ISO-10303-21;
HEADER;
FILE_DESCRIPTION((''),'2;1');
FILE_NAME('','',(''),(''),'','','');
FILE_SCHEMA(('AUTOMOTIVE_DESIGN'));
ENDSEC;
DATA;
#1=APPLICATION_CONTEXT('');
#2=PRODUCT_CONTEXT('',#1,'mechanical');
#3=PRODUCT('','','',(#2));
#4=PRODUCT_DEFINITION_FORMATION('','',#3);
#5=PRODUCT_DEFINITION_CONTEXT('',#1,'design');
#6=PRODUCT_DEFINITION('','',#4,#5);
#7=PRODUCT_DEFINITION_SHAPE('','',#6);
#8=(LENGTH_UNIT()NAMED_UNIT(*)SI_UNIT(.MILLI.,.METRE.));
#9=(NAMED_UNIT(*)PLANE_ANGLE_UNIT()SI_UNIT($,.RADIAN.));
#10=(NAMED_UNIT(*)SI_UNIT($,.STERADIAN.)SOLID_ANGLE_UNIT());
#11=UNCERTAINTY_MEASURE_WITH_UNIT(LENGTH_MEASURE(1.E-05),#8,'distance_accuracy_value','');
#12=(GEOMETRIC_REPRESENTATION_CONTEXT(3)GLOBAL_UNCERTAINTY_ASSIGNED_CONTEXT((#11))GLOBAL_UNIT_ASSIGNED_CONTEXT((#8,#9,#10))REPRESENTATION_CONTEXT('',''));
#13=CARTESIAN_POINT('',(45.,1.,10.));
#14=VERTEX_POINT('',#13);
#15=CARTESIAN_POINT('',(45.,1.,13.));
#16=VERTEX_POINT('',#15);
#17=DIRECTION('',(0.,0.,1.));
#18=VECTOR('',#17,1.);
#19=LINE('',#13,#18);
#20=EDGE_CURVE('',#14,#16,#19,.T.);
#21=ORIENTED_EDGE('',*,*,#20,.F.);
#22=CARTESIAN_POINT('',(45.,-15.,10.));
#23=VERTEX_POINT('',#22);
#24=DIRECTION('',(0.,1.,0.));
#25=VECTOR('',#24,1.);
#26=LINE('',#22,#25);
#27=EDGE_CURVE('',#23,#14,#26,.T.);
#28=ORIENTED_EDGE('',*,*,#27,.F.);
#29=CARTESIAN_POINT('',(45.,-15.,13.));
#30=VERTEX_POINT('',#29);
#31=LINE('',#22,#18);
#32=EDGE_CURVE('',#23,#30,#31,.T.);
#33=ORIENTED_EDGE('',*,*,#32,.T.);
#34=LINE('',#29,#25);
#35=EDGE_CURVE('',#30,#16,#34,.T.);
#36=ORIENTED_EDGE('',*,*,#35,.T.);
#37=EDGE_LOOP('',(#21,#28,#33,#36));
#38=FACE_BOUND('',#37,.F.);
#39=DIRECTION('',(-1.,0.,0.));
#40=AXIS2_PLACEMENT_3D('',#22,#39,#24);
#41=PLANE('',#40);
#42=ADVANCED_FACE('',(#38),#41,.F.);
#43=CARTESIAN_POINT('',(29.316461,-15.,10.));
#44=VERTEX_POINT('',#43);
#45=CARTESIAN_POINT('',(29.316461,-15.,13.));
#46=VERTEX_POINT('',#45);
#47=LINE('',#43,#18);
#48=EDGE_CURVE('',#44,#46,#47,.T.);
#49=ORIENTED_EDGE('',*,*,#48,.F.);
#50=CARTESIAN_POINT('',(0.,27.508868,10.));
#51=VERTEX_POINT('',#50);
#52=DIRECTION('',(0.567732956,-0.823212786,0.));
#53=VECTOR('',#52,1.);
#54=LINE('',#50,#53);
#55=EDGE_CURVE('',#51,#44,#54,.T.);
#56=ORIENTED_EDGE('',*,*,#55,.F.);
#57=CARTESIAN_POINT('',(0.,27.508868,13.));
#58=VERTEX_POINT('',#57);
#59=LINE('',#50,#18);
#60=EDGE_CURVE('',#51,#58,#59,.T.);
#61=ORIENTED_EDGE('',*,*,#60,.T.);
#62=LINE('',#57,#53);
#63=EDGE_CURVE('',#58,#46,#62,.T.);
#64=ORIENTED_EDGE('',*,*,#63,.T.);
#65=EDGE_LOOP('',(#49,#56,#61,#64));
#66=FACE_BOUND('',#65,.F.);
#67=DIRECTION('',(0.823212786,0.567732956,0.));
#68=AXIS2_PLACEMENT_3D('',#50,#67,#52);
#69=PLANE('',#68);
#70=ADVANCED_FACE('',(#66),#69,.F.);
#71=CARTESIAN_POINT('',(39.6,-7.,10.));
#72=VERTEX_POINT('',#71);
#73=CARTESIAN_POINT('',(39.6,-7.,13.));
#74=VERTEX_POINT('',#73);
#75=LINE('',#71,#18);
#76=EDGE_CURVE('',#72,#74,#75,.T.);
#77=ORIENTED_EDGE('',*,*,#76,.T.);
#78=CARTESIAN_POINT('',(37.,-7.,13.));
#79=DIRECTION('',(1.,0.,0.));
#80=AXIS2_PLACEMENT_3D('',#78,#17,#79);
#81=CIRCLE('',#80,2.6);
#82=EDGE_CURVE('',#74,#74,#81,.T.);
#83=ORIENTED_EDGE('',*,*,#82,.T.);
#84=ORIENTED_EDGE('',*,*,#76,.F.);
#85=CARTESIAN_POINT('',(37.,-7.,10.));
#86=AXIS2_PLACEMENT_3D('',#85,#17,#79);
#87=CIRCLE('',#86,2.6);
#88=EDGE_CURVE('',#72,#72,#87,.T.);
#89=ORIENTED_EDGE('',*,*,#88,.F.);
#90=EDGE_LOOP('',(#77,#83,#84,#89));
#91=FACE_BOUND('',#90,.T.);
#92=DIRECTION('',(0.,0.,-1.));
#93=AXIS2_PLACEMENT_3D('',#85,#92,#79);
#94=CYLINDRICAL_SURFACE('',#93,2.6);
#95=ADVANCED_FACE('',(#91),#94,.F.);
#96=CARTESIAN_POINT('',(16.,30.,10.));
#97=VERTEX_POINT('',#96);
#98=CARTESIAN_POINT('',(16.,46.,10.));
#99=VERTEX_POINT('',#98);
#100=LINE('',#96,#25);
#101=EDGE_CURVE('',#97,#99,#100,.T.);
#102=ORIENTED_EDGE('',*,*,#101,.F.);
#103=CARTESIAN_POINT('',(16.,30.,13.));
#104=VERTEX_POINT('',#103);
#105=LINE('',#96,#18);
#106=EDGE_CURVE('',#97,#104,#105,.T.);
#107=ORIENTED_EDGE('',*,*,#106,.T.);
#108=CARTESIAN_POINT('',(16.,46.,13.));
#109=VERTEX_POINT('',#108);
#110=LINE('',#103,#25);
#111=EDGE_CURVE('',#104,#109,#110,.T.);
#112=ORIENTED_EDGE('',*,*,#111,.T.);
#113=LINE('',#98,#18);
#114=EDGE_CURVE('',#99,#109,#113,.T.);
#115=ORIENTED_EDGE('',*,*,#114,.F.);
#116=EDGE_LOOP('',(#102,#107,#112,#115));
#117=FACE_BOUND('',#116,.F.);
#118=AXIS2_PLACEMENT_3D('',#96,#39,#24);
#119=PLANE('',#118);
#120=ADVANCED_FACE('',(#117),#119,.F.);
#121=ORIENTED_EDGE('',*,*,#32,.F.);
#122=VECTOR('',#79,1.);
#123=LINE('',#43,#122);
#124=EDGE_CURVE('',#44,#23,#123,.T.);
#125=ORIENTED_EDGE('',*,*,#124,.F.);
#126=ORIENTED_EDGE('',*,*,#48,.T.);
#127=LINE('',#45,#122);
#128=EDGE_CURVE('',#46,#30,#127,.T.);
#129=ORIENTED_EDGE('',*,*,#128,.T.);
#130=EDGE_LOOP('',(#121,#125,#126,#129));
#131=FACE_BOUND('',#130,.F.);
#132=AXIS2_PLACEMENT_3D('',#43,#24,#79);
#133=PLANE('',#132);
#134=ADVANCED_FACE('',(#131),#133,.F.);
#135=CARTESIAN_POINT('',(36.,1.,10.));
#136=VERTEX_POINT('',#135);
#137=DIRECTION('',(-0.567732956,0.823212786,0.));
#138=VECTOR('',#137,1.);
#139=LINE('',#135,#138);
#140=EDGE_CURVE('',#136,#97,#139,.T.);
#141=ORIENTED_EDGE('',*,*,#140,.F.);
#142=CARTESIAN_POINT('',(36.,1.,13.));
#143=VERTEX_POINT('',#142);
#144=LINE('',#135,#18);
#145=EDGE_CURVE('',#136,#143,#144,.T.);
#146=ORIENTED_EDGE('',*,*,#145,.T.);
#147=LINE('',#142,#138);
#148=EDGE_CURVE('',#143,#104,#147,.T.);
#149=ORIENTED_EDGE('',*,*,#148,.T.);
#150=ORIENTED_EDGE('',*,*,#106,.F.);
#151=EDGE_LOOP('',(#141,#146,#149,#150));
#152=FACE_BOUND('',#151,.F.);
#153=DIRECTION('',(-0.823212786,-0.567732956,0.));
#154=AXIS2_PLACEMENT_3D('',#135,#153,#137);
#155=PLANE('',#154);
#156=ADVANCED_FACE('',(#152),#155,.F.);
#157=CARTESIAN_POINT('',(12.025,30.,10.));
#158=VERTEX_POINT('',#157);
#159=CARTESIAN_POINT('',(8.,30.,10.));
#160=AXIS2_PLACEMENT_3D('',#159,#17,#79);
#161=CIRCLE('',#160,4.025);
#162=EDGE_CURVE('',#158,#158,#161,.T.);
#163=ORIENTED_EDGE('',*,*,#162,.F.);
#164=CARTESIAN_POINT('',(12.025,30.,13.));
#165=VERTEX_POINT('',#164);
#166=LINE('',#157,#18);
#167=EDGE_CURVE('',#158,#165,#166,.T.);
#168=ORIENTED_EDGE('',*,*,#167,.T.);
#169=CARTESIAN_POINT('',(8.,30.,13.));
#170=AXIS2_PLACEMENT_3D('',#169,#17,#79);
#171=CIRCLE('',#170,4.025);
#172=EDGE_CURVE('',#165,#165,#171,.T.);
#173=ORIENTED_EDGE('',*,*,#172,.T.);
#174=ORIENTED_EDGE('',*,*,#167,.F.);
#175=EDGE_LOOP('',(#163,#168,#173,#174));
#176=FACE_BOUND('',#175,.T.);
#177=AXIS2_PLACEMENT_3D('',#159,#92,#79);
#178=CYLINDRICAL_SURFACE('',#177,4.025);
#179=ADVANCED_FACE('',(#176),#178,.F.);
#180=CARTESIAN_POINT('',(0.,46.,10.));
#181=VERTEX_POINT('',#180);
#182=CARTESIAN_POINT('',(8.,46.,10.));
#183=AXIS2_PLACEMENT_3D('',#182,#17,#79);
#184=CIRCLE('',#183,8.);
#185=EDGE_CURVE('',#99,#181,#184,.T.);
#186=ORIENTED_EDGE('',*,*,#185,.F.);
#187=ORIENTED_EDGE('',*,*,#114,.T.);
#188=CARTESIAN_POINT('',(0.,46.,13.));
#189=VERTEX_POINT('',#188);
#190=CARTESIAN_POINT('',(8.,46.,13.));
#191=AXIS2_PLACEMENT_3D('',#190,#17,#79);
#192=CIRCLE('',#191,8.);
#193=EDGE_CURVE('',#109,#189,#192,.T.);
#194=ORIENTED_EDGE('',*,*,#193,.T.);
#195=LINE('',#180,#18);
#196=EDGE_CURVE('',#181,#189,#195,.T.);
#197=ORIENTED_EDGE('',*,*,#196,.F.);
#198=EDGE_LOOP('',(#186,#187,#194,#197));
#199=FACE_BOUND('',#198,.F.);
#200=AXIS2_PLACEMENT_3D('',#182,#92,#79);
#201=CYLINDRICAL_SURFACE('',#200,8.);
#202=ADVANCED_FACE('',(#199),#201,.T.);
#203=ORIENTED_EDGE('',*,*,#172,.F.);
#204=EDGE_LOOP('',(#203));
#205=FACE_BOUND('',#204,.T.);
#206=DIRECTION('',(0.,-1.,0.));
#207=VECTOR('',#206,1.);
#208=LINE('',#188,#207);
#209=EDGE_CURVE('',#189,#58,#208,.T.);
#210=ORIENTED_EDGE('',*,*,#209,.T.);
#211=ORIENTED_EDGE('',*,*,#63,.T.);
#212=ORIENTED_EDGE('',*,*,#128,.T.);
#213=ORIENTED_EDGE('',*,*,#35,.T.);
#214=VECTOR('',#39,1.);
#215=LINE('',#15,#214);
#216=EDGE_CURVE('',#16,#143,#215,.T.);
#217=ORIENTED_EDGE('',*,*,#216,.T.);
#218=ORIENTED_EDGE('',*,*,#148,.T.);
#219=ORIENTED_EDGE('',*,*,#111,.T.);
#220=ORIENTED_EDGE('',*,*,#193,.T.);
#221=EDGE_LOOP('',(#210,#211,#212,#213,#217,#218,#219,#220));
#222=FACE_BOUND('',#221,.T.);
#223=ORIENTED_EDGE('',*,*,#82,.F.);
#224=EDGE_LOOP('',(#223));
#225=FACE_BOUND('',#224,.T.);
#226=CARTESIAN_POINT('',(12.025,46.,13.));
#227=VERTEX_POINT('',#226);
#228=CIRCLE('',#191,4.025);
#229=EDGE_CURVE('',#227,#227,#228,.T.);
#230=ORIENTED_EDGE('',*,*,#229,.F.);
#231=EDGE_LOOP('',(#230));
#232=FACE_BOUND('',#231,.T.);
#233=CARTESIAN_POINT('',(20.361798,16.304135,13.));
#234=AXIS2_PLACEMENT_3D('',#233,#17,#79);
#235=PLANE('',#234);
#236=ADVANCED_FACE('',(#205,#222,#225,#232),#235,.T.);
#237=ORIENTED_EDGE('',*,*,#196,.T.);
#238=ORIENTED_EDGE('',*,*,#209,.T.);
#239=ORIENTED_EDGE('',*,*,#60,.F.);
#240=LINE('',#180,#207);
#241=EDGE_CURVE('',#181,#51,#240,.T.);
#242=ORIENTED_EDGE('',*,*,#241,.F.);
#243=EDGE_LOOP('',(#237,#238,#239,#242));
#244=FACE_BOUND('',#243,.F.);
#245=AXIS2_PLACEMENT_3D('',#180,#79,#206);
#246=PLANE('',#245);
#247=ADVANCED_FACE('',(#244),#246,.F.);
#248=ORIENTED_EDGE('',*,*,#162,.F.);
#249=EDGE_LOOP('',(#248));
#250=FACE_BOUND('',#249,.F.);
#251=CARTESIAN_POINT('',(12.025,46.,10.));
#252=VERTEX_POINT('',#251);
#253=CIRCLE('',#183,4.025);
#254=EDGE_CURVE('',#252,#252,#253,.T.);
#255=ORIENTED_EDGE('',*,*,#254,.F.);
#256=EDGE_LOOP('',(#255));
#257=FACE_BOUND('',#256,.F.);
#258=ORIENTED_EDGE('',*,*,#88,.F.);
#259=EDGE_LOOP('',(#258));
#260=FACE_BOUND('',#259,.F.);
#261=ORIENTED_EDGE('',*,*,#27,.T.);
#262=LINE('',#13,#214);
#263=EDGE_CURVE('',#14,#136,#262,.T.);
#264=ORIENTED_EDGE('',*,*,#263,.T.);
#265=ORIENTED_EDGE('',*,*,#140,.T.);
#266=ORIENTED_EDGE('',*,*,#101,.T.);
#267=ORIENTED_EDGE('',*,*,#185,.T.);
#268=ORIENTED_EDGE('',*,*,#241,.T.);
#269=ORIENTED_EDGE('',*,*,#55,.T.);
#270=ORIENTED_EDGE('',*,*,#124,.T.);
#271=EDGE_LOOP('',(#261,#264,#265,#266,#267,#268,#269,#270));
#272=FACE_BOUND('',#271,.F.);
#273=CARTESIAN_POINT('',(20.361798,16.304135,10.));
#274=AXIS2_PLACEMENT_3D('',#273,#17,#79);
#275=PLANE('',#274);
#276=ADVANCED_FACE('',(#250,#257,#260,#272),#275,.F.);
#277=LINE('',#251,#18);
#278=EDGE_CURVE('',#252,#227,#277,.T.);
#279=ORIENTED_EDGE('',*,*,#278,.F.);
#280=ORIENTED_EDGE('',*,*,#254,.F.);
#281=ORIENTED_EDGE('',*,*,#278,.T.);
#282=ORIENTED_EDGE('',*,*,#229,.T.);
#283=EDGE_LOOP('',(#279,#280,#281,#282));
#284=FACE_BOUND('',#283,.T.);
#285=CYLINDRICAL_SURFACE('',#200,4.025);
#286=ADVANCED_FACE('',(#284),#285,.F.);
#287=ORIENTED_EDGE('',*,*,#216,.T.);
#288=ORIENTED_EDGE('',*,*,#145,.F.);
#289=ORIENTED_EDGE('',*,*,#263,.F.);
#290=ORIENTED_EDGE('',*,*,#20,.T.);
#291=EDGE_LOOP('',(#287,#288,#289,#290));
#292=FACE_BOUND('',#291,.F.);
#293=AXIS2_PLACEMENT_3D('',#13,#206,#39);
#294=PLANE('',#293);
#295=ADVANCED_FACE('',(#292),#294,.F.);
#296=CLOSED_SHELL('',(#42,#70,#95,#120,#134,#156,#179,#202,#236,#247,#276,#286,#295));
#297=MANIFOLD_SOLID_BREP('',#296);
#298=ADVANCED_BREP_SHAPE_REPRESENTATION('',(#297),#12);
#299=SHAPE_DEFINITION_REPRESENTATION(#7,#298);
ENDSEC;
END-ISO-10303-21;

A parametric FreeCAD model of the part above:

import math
import FreeCAD as App
import Part
import Sketcher
from FreeCAD import Vector

doc = App.newDocument("Part")
body = doc.addObject("PartDesign::Body", "Body")

sketch1 = doc.addObject("Sketcher::SketchObject", "Sketch")
body.addObject(sketch1)
sketch1.AttachmentSupport = (doc.XY_Plane, [""])
sketch1.MapMode = "FlatFace"
sketch1.AttachmentOffset = App.Placement(Vector(0, 0, 10), App.Rotation())
sketch1.addGeometry([
    Part.LineSegment(Vector(0, 46, 0), Vector(0, 27.5, 0)),
    Part.LineSegment(Vector(0, 27.5, 0), Vector(29.3, -15, 0)),
    Part.LineSegment(Vector(29.3, -15, 0), Vector(45, -15, 0)),
    Part.LineSegment(Vector(45, -15, 0), Vector(45, 1, 0)),
    Part.LineSegment(Vector(45, 1, 0), Vector(36, 1, 0)),
    Part.LineSegment(Vector(36, 1, 0), Vector(16, 30, 0)),
    Part.LineSegment(Vector(16, 30, 0), Vector(16, 46, 0)),
    Part.ArcOfCircle(Part.Circle(Vector(8, 46, 0), Vector(0, 0, 1), 8), math.radians(0), math.radians(180)),
    Part.Circle(Vector(37, -7, 0), Vector(0, 0, 1), 2.6),
    Part.Circle(Vector(8, 30, 0), Vector(0, 0, 1), 4),
    Part.Circle(Vector(8, 46, 0), Vector(0, 0, 1), 4),
], False)
sketch1.addConstraint([
    Sketcher.Constraint("Coincident", 0, 2, 1, 1),
    Sketcher.Constraint("Coincident", 1, 2, 2, 1),
    Sketcher.Constraint("Coincident", 2, 2, 3, 1),
    Sketcher.Constraint("Coincident", 3, 2, 4, 1),
    Sketcher.Constraint("Coincident", 4, 2, 5, 1),
    Sketcher.Constraint("Coincident", 5, 2, 6, 1),
    Sketcher.Constraint("Tangent", 6, 2, 7, 1),
    Sketcher.Constraint("Tangent", 7, 2, 0, 1),
    Sketcher.Constraint("Vertical", 0),
    Sketcher.Constraint("Horizontal", 2),
    Sketcher.Constraint("Vertical", 3),
    Sketcher.Constraint("Horizontal", 4),
    Sketcher.Constraint("Vertical", 6),
    Sketcher.Constraint("Coincident", 10, 3, 7, 3),
    Sketcher.Constraint("Equal", 9, 10),
    Sketcher.Constraint("PointOnObject", 0, 2, -2),
    Sketcher.Constraint("Parallel", 1, 5),
    Sketcher.Constraint("Horizontal", 9, 3, 5, 2),
    Sketcher.Constraint("Vertical", 7, 3, 9, 3),
    Sketcher.Constraint("Equal", 3, 6),
    Sketcher.Constraint("Radius", 7, 8.0),
    Sketcher.Constraint("Diameter", 8, 5.2),
    Sketcher.Constraint("Diameter", 9, 8.05),
    Sketcher.Constraint("DistanceX", 4, 2, 4, 1, 9.0),
    Sketcher.Constraint("DistanceY", 3, 1, 3, 2, 16.0),
    Sketcher.Constraint("DistanceY", -1, 1, 7, 3, 46.0),
    Sketcher.Constraint("DistanceX", -1, 1, 8, 3, 37.0),
    Sketcher.Constraint("DistanceY", 8, 3, -1, 1, 7.0),
    Sketcher.Constraint("DistanceY", 1, 2, -1, 1, 15.0),
    Sketcher.Constraint("DistanceX", -1, 1, 2, 2, 45.0),
    Sketcher.Constraint("DistanceX", 2, 1, 2, 2, 15.683539),
])
pad1 = doc.addObject("PartDesign::Pad", "Pad")
body.addObject(pad1)
pad1.Profile = sketch1
pad1.Length = 3

doc.recompute()
